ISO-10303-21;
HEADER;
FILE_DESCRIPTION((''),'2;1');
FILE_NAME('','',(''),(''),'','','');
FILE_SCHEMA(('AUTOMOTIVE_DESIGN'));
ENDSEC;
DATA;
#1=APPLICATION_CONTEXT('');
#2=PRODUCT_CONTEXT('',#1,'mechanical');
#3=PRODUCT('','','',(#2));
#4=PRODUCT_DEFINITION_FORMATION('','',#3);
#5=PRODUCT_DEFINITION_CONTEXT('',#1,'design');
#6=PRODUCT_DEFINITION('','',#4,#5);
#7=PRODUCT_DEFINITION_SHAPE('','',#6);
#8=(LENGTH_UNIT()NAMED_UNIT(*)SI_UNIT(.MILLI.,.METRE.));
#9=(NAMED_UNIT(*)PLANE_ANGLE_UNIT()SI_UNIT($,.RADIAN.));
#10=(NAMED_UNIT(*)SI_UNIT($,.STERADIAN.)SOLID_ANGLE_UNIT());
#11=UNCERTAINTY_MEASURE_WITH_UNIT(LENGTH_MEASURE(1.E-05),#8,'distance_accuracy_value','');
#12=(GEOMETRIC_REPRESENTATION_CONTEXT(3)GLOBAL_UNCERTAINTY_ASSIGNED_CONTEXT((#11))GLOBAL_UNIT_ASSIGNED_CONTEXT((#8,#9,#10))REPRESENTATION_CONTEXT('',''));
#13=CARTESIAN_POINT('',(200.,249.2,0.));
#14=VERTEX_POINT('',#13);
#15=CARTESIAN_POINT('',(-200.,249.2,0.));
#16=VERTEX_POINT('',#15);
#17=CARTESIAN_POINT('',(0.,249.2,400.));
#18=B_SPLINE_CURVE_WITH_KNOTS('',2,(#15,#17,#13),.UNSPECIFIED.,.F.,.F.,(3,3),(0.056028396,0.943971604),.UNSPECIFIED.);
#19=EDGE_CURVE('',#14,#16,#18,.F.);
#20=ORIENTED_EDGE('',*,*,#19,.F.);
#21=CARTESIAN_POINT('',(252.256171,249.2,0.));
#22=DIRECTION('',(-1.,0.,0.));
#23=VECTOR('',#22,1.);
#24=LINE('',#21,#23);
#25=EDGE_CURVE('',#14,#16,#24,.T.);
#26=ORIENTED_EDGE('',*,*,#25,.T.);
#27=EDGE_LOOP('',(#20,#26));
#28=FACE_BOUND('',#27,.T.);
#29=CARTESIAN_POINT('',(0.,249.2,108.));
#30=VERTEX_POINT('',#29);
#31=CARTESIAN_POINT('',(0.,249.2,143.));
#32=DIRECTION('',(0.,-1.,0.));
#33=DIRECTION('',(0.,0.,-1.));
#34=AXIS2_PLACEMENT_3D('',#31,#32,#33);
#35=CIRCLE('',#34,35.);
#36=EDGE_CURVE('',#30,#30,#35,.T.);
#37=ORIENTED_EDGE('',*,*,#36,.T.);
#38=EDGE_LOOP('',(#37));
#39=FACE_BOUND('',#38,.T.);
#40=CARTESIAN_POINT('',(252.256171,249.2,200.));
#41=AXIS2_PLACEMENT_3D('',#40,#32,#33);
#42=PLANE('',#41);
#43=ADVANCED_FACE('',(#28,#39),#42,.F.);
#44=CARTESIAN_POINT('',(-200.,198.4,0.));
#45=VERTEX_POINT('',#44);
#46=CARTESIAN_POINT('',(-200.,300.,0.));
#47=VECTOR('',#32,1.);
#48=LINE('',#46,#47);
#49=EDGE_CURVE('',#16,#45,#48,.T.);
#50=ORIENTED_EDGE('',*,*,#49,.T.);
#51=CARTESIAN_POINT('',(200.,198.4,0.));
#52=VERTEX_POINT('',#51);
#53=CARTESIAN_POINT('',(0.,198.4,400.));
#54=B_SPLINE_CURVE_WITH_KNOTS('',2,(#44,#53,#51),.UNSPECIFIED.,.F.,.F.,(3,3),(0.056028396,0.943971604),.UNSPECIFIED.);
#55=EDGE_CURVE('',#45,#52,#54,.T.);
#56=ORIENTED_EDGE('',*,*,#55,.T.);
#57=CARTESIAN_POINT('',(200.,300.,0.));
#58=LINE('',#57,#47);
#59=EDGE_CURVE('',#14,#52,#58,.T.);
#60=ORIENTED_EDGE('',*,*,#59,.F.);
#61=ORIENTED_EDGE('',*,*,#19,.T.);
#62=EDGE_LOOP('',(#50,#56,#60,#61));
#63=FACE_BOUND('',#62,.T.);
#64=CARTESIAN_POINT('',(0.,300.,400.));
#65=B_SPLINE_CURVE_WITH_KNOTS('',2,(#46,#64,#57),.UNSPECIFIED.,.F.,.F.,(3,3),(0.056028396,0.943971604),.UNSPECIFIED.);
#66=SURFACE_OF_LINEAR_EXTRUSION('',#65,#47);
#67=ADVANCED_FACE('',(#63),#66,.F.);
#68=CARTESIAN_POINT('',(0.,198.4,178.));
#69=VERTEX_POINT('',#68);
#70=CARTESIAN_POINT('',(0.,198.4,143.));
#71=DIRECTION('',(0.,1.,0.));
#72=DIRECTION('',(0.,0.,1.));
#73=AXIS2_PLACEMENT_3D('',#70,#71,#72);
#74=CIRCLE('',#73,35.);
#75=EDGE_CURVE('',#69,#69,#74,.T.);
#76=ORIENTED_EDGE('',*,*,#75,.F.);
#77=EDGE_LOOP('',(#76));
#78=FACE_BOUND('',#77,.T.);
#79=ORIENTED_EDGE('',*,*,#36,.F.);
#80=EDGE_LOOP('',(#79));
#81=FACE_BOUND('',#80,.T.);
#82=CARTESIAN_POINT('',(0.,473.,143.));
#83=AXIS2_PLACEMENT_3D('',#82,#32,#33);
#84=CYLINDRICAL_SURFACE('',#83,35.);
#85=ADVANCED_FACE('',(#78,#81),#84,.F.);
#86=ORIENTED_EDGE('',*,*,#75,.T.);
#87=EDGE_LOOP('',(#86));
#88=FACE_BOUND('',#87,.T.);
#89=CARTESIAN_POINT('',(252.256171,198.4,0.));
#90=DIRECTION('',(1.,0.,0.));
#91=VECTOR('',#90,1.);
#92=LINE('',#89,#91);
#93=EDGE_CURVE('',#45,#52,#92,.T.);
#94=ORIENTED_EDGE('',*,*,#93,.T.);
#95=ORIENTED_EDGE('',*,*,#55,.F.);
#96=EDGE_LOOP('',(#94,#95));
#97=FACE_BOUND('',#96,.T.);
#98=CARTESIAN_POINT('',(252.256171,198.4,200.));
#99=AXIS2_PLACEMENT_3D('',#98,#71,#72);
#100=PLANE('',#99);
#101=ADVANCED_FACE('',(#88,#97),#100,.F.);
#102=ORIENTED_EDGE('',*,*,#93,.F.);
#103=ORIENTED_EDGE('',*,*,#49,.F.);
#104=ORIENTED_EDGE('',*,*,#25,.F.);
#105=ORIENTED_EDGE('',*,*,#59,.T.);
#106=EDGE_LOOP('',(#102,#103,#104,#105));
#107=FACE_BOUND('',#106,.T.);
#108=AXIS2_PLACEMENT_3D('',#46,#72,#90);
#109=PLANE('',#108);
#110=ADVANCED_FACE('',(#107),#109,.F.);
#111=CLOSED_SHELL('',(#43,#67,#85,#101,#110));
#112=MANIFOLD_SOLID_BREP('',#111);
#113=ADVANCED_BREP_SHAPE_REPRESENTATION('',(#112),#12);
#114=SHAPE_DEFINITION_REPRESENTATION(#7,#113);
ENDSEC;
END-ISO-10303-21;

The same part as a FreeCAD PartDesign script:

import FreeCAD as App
import Part
import Sketcher
Q = App.Units.Quantity


def add_polygon(sketch, points):
    """Adds a closed chain of lines whose ends are joined by coincident constraints."""
    first, n = sketch.GeometryCount, len(points)
    for a, b in zip(points, points[1:] + points[:1]):
        sketch.addGeometry(Part.LineSegment(App.Vector(*a, 0), App.Vector(*b, 0)), False)
    for i in range(n):
        sketch.addConstraint(Sketcher.Constraint("Coincident", first + i, 2, first + (i + 1) % n, 1))

doc = App.newDocument("Part")
params = doc.addObject("Spreadsheet::Sheet", "Params")
for row, (alias, value) in enumerate([
    ("pad1_length", "300 mm"),
    ("sketch2_diameter", "31 mm"),
    ("pocket1_length", "23 mm"),
    ("pocket1_length2", "23 mm"),
    ("sketch3_diameter", "70 mm"),
    ("pocket2_length", "300 mm"),
], start=1):
    params.set(f"A{row}", alias)
    params.set(f"B{row}", "=" + value)
    params.setAlias(f"B{row}", alias)

body = doc.addObject("PartDesign::Body", "Body")

sketch1 = body.newObject("Sketcher::SketchObject", "Sketch")
sketch1.AttachmentSupport = (doc.getObject("XZ_Plane"), [""])
sketch1.MapMode = "FlatFace"
sketch1.addGeometry([
    Part.LineSegment(App.Vector(200, 0, 0), App.Vector(-200, 0, 0)),
    Part.BSplineCurve([App.Vector(-200, 0, 0), App.Vector(0, 400, 0), App.Vector(200, 0, 0)], [3, 3], [0.056028396, 0.943971604], False, 2, [1, 1, 1], False),
], False)
sketch1.addConstraint([
    Sketcher.Constraint("Block", 1),
    Sketcher.Constraint("Coincident", 0, 1, 1, 2),
    Sketcher.Constraint("Coincident", 1, 1, 0, 2),
])
pad1 = body.newObject("PartDesign::Pad", "Pad")
pad1.Profile = sketch1
pad1.setExpression("Length", "Params.pad1_length")
pad1.Reversed = True

sketch2 = body.newObject("Sketcher::SketchObject", "Sketch001")
sketch2.AttachmentSupport = (doc.getObject("XZ_Plane"), [""])
sketch2.MapMode = "FlatFace"
sketch2.AttachmentOffset = App.Placement(App.Vector(0, 0, -150), App.Rotation())
sketch2.addGeometry(Part.Circle(App.Vector(0, 143, 0), App.Vector(0, 0, 1), 16), False)
sketch2.addConstraint([
    Sketcher.Constraint("PointOnObject", 0, 3, -2),
    Sketcher.Constraint("Diameter", 0, Q("31 mm")),
    Sketcher.Constraint("DistanceY", -1, 1, 0, 3, Q("143 mm")),
])
sketch2.setExpression("Constraints[1]", "Params.sketch2_diameter")
pocket1 = body.newObject("PartDesign::Pocket", "Pocket")
pocket1.Profile = sketch2
pocket1.Type = "TwoLengths"
pocket1.setExpression("Length", "Params.pocket1_length")
pocket1.setExpression("Length2", "Params.pocket1_length2")

sketch3 = body.newObject("Sketcher::SketchObject", "Sketch002")
sketch3.AttachmentSupport = (doc.getObject("XZ_Plane"), [""])
sketch3.MapMode = "FlatFace"
sketch3.AttachmentOffset = App.Placement(App.Vector(0, 0, -173), App.Rotation())
sketch3.addGeometry(Part.Circle(App.Vector(0, 143, 0), App.Vector(0, 0, 1), 35), False)
sketch3.addConstraint([
    Sketcher.Constraint("PointOnObject", 0, 3, -2),
    Sketcher.Constraint("Diameter", 0, Q("70 mm")),
    Sketcher.Constraint("DistanceY", -1, 1, 0, 3, Q("143 mm")),
])
sketch3.setExpression("Constraints[1]", "Params.sketch3_diameter")
pocket2 = body.newObject("PartDesign::Pocket", "Pocket001")
pocket2.Profile = sketch3
pocket2.setExpression("Length", "Params.pocket2_length")
doc.recompute()

datumplane = body.newObject("PartDesign::Plane", "DatumPlane")
datumplane.AttachmentSupport = (doc.getObject("XZ_Plane"), [""])
datumplane.MapMode = "FlatFace"
datumplane.AttachmentOffset = App.Placement(App.Vector(0, 0, -150), App.Rotation())
mirrored = body.newObject("PartDesign::Mirrored", "Mirrored")
mirrored.Originals = [pocket2]
mirrored.MirrorPlane = (datumplane, [""])
body.Tip = mirrored

sketch4 = body.newObject("Sketcher::SketchObject", "Sketch003")
sketch4.AttachmentSupport = (doc.getObject("XY_Plane"), [""])
sketch4.MapMode = "FlatFace"
add_polygon(sketch4, [(252, 320), (252, 249), (-244, 249), (-244, 320)])
add_polygon(sketch4, [(252, 198), (252, -40), (-252, -40), (-252, 198)])
sketch4.addConstraint([
    Sketcher.Constraint("Vertical", 0),
    Sketcher.Constraint("Horizontal", 1),
    Sketcher.Constraint("Vertical", 2),
    Sketcher.Constraint("Horizontal", 3),
    Sketcher.Constraint("Vertical", 4),
    Sketcher.Constraint("Horizontal", 5),
    Sketcher.Constraint("Vertical", 6),
    Sketcher.Constraint("Horizontal", 7),
    Sketcher.Constraint("Vertical", 3, 2, 4, 2),
    Sketcher.Constraint("DistanceY", -1, 1, 0, 2, Q("249.2 mm")),
    Sketcher.Constraint("DistanceY", -1, 1, 6, 2, Q("198.4 mm")),
    Sketcher.Constraint("DistanceX", 1, 2, 1, 1, Q("496.225666 mm")),
    Sketcher.Constraint("DistanceX", 5, 2, 5, 1, Q("504.512342 mm")),
    Sketcher.Constraint("DistanceY", 0, 2, 0, 1, Q("70.680473 mm")),
    Sketcher.Constraint("DistanceY", 4, 2, 4, 1, Q("238.363802 mm")),
    Sketcher.Constraint("DistanceX", -1, 1, 0, 2, Q("252.256171 mm")),
])
pocket3 = body.newObject("PartDesign::Pocket", "Pocket002")
pocket3.Profile = sketch4
pocket3.Type = "ThroughAll"
pocket3.Reversed = True

doc.recompute()
